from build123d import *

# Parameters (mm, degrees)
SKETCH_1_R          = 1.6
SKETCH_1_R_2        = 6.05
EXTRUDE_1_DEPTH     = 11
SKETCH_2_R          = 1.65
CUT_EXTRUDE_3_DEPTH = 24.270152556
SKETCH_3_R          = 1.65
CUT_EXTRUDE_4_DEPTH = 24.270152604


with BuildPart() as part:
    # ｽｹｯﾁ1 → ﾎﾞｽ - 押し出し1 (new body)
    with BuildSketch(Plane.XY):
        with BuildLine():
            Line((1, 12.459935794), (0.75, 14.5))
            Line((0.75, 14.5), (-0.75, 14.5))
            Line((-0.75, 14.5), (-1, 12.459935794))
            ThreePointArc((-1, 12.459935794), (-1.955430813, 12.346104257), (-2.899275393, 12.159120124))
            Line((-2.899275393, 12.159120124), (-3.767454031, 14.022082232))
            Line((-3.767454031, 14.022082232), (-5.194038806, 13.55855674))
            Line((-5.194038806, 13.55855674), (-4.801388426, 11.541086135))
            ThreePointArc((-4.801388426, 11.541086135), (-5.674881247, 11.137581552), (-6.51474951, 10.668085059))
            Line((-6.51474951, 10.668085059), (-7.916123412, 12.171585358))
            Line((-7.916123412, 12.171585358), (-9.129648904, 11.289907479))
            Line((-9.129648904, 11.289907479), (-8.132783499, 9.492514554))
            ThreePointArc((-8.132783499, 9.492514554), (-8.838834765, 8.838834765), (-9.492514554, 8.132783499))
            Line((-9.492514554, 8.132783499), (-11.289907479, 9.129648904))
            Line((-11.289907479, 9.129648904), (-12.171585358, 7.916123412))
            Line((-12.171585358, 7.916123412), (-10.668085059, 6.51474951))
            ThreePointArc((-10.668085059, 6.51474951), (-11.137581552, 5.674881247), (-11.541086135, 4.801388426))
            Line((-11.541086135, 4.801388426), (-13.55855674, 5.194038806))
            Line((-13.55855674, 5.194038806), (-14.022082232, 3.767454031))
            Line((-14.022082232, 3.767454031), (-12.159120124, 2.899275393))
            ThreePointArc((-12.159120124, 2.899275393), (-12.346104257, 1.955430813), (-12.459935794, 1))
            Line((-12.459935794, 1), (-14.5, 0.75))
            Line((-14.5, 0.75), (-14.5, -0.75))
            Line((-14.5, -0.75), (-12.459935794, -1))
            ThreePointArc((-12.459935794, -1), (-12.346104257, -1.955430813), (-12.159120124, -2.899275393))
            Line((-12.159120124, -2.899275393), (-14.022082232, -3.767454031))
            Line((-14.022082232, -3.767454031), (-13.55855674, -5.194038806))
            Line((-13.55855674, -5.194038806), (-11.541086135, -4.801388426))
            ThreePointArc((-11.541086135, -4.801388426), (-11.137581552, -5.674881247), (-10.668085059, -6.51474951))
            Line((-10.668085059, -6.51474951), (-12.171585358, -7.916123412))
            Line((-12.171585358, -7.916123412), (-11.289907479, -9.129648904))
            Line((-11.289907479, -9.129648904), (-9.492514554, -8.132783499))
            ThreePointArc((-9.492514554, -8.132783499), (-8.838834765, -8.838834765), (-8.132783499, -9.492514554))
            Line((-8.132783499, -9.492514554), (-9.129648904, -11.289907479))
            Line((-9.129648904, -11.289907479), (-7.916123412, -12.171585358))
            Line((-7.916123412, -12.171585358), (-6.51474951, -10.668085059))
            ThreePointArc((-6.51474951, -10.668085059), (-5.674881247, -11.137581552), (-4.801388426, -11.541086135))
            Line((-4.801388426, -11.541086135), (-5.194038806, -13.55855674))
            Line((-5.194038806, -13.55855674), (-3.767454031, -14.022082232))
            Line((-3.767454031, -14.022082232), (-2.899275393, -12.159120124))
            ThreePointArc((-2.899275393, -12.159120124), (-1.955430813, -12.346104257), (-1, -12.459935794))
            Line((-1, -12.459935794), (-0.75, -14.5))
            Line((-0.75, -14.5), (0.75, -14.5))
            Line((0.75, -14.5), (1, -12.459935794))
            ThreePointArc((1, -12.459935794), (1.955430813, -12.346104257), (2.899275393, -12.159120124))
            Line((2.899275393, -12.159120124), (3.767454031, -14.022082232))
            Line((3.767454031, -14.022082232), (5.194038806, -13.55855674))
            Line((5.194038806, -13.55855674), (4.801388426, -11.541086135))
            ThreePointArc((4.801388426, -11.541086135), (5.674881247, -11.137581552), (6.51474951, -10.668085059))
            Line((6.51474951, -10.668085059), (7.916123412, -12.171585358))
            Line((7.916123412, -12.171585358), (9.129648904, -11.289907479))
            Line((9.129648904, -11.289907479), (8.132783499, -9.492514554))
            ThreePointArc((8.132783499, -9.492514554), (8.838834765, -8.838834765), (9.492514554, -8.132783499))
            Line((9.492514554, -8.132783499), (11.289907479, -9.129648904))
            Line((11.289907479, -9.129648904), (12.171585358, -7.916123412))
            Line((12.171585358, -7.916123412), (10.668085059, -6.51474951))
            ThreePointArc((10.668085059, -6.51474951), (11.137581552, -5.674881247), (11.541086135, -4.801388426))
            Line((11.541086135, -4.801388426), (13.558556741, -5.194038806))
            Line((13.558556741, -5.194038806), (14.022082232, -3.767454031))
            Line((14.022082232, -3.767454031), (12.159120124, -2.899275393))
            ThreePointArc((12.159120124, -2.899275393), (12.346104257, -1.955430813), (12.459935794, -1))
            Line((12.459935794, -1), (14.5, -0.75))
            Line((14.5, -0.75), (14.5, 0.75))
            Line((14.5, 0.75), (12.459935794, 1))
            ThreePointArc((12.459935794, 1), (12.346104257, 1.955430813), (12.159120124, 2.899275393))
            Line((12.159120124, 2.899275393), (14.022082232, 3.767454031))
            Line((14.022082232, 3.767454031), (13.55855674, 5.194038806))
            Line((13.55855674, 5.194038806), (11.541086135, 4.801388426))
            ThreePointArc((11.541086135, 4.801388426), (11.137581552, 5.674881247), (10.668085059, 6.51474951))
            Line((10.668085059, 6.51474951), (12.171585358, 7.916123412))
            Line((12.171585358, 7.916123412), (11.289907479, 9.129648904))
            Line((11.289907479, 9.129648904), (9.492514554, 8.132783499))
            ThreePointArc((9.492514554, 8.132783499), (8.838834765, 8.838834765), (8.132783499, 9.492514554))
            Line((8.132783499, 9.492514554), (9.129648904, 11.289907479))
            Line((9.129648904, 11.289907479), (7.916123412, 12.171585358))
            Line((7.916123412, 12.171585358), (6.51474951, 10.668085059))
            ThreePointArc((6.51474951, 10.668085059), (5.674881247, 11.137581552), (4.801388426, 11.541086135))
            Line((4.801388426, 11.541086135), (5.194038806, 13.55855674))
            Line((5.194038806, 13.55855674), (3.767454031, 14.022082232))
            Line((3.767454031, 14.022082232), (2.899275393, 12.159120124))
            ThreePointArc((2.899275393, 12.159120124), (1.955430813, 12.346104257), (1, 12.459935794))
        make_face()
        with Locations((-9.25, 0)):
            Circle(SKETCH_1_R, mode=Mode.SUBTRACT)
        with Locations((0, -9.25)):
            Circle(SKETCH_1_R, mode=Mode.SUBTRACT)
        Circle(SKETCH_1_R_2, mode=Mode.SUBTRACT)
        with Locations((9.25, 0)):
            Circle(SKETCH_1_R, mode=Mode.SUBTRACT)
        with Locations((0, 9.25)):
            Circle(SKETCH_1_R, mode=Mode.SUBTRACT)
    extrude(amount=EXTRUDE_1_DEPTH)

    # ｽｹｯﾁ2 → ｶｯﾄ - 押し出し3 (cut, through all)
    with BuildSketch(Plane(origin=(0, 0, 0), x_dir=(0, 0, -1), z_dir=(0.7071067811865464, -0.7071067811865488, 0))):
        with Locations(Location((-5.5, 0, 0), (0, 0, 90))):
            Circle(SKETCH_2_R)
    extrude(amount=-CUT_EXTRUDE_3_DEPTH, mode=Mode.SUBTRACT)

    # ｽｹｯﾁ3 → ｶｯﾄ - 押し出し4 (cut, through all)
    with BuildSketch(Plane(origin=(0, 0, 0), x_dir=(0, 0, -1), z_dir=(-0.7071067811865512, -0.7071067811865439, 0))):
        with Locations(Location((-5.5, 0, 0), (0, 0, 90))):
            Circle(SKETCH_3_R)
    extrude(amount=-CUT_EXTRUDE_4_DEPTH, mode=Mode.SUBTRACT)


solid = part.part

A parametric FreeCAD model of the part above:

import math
import FreeCAD as App
import Part
import Sketcher
from FreeCAD import Vector
Q = App.Units.Quantity

doc = App.newDocument("Part")
body = doc.addObject("PartDesign::Body", "Body")

# Sketch on XY plane
sketch1 = body.newObject("Sketcher::SketchObject", "Sketch")
sketch1.AttachmentSupport = (doc.getObject("XY_Plane"), [""])
sketch1.MapMode = "FlatFace"
sketch1.addGeometry([
    Part.LineSegment(Vector(1, 12.5, 0), Vector(0.8, 14.5, 0)),  # 0
    Part.LineSegment(Vector(0.8, 14.5, 0), Vector(-0.8, 14.5, 0)),  # 1
    Part.LineSegment(Vector(-0.8, 14.5, 0), Vector(-1, 12.5, 0)),  # 2
    Part.ArcOfCircle(Part.Circle(Vector(0, 0, 0), Vector(0, 0, 1), 12.5), math.radians(94.59), math.radians(103.41)),  # 3
    Part.LineSegment(Vector(-2.9, 12.2, 0), Vector(-3.8, 14, 0)),  # 4
    Part.LineSegment(Vector(-3.8, 14, 0), Vector(-5.2, 13.6, 0)),  # 5
    Part.LineSegment(Vector(-5.2, 13.6, 0), Vector(-4.8, 11.5, 0)),  # 6
    Part.ArcOfCircle(Part.Circle(Vector(0, 0, 0), Vector(0, 0, 1), 12.5), math.radians(112.59), math.radians(121.41)),  # 7
    Part.LineSegment(Vector(-6.5, 10.7, 0), Vector(-7.9, 12.2, 0)),  # 8
    Part.LineSegment(Vector(-7.9, 12.2, 0), Vector(-9.1, 11.3, 0)),  # 9
    Part.LineSegment(Vector(-9.1, 11.3, 0), Vector(-8.1, 9.5, 0)),  # 10
    Part.ArcOfCircle(Part.Circle(Vector(0, 0, 0), Vector(0, 0, 1), 12.5), math.radians(130.59), math.radians(139.41)),  # 11
    Part.LineSegment(Vector(-9.5, 8.1, 0), Vector(-11.3, 9.1, 0)),  # 12
    Part.LineSegment(Vector(-11.3, 9.1, 0), Vector(-12.2, 7.9, 0)),  # 13
    Part.LineSegment(Vector(-12.2, 7.9, 0), Vector(-10.7, 6.5, 0)),  # 14
    Part.ArcOfCircle(Part.Circle(Vector(0, 0, 0), Vector(0, 0, 1), 12.5), math.radians(148.59), math.radians(157.41)),  # 15
    Part.LineSegment(Vector(-11.5, 4.8, 0), Vector(-13.6, 5.2, 0)),  # 16
    Part.LineSegment(Vector(-13.6, 5.2, 0), Vector(-14, 3.8, 0)),  # 17
    Part.LineSegment(Vector(-14, 3.8, 0), Vector(-12.2, 2.9, 0)),  # 18
    Part.ArcOfCircle(Part.Circle(Vector(0, 0, 0), Vector(0, 0, 1), 12.5), math.radians(166.59), math.radians(175.41)),  # 19
    Part.LineSegment(Vector(-12.5, 1, 0), Vector(-14.5, 0.8, 0)),  # 20
    Part.LineSegment(Vector(-14.5, 0.8, 0), Vector(-14.5, -0.8, 0)),  # 21
    Part.LineSegment(Vector(-14.5, -0.8, 0), Vector(-12.5, -1, 0)),  # 22
    Part.ArcOfCircle(Part.Circle(Vector(0, 0, 0), Vector(0, 0, 1), 12.5), math.radians(-175.41), math.radians(-166.59)),  # 23
    Part.LineSegment(Vector(-12.2, -2.9, 0), Vector(-14, -3.8, 0)),  # 24
    Part.LineSegment(Vector(-14, -3.8, 0), Vector(-13.6, -5.2, 0)),  # 25
    Part.LineSegment(Vector(-13.6, -5.2, 0), Vector(-11.5, -4.8, 0)),  # 26
    Part.ArcOfCircle(Part.Circle(Vector(0, 0, 0), Vector(0, 0, 1), 12.5), math.radians(-157.41), math.radians(-148.59)),  # 27
    Part.LineSegment(Vector(-10.7, -6.5, 0), Vector(-12.2, -7.9, 0)),  # 28
    Part.LineSegment(Vector(-12.2, -7.9, 0), Vector(-11.3, -9.1, 0)),  # 29
    Part.LineSegment(Vector(-11.3, -9.1, 0), Vector(-9.5, -8.1, 0)),  # 30
    Part.ArcOfCircle(Part.Circle(Vector(0, 0, 0), Vector(0, 0, 1), 12.5), math.radians(-139.41), math.radians(-130.59)),  # 31
    Part.LineSegment(Vector(-8.1, -9.5, 0), Vector(-9.1, -11.3, 0)),  # 32
    Part.LineSegment(Vector(-9.1, -11.3, 0), Vector(-7.9, -12.2, 0)),  # 33
    Part.LineSegment(Vector(-7.9, -12.2, 0), Vector(-6.5, -10.7, 0)),  # 34
    Part.ArcOfCircle(Part.Circle(Vector(0, 0, 0), Vector(0, 0, 1), 12.5), math.radians(-121.41), math.radians(-112.59)),  # 35
    Part.LineSegment(Vector(-4.8, -11.5, 0), Vector(-5.2, -13.6, 0)),  # 36
    Part.LineSegment(Vector(-5.2, -13.6, 0), Vector(-3.8, -14, 0)),  # 37
    Part.LineSegment(Vector(-3.8, -14, 0), Vector(-2.9, -12.2, 0)),  # 38
    Part.ArcOfCircle(Part.Circle(Vector(0, 0, 0), Vector(0, 0, 1), 12.5), math.radians(-103.41), math.radians(-94.59)),  # 39
    Part.LineSegment(Vector(-1, -12.5, 0), Vector(-0.8, -14.5, 0)),  # 40
    Part.LineSegment(Vector(-0.8, -14.5, 0), Vector(0.8, -14.5, 0)),  # 41
    Part.LineSegment(Vector(0.8, -14.5, 0), Vector(1, -12.5, 0)),  # 42
    Part.ArcOfCircle(Part.Circle(Vector(0, 0, 0), Vector(0, 0, 1), 12.5), math.radians(-85.41), math.radians(-76.59)),  # 43
    Part.LineSegment(Vector(2.9, -12.2, 0), Vector(3.8, -14, 0)),  # 44
    Part.LineSegment(Vector(3.8, -14, 0), Vector(5.2, -13.6, 0)),  # 45
    Part.LineSegment(Vector(5.2, -13.6, 0), Vector(4.8, -11.5, 0)),  # 46
    Part.ArcOfCircle(Part.Circle(Vector(0, 0, 0), Vector(0, 0, 1), 12.5), math.radians(-67.41), math.radians(-58.59)),  # 47
    Part.LineSegment(Vector(6.5, -10.7, 0), Vector(7.9, -12.2, 0)),  # 48
    Part.LineSegment(Vector(7.9, -12.2, 0), Vector(9.1, -11.3, 0)),  # 49
    Part.LineSegment(Vector(9.1, -11.3, 0), Vector(8.1, -9.5, 0)),  # 50
    Part.ArcOfCircle(Part.Circle(Vector(0, 0, 0), Vector(0, 0, 1), 12.5), math.radians(-49.41), math.radians(-40.59)),  # 51
    Part.LineSegment(Vector(9.5, -8.1, 0), Vector(11.3, -9.1, 0)),  # 52
    Part.LineSegment(Vector(11.3, -9.1, 0), Vector(12.2, -7.9, 0)),  # 53
    Part.LineSegment(Vector(12.2, -7.9, 0), Vector(10.7, -6.5, 0)),  # 54
    Part.ArcOfCircle(Part.Circle(Vector(0, 0, 0), Vector(0, 0, 1), 12.5), math.radians(-31.41), math.radians(-22.59)),  # 55
    Part.LineSegment(Vector(11.5, -4.8, 0), Vector(13.6, -5.2, 0)),  # 56
    Part.LineSegment(Vector(13.6, -5.2, 0), Vector(14, -3.8, 0)),  # 57
    Part.LineSegment(Vector(14, -3.8, 0), Vector(12.2, -2.9, 0)),  # 58
    Part.ArcOfCircle(Part.Circle(Vector(0, 0, 0), Vector(0, 0, 1), 12.5), math.radians(-13.41), math.radians(-4.59)),  # 59
    Part.LineSegment(Vector(12.5, -1, 0), Vector(14.5, -0.8, 0)),  # 60
    Part.LineSegment(Vector(14.5, -0.8, 0), Vector(14.5, 0.8, 0)),  # 61
    Part.LineSegment(Vector(14.5, 0.8, 0), Vector(12.5, 1, 0)),  # 62
    Part.ArcOfCircle(Part.Circle(Vector(0, 0, 0), Vector(0, 0, 1), 12.5), math.radians(4.59), math.radians(13.41)),  # 63
    Part.LineSegment(Vector(12.2, 2.9, 0), Vector(14, 3.8, 0)),  # 64
    Part.LineSegment(Vector(14, 3.8, 0), Vector(13.6, 5.2, 0)),  # 65
    Part.LineSegment(Vector(13.6, 5.2, 0), Vector(11.5, 4.8, 0)),  # 66
    Part.ArcOfCircle(Part.Circle(Vector(0, 0, 0), Vector(0, 0, 1), 12.5), math.radians(22.59), math.radians(31.41)),  # 67
    Part.LineSegment(Vector(10.7, 6.5, 0), Vector(12.2, 7.9, 0)),  # 68
    Part.LineSegment(Vector(12.2, 7.9, 0), Vector(11.3, 9.1, 0)),  # 69
    Part.LineSegment(Vector(11.3, 9.1, 0), Vector(9.5, 8.1, 0)),  # 70
    Part.ArcOfCircle(Part.Circle(Vector(0, 0, 0), Vector(0, 0, 1), 12.5), math.radians(40.59), math.radians(49.41)),  # 71
    Part.LineSegment(Vector(8.1, 9.5, 0), Vector(9.1, 11.3, 0)),  # 72
    Part.LineSegment(Vector(9.1, 11.3, 0), Vector(7.9, 12.2, 0)),  # 73
    Part.LineSegment(Vector(7.9, 12.2, 0), Vector(6.5, 10.7, 0)),  # 74
    Part.ArcOfCircle(Part.Circle(Vector(0, 0, 0), Vector(0, 0, 1), 12.5), math.radians(58.59), math.radians(67.41)),  # 75
    Part.LineSegment(Vector(4.8, 11.5, 0), Vector(5.2, 13.6, 0)),  # 76
    Part.LineSegment(Vector(5.2, 13.6, 0), Vector(3.8, 14, 0)),  # 77
    Part.LineSegment(Vector(3.8, 14, 0), Vector(2.9, 12.2, 0)),  # 78
    Part.ArcOfCircle(Part.Circle(Vector(0, 0, 0), Vector(0, 0, 1), 12.5), math.radians(76.59), math.radians(85.41)),  # 79
    Part.Circle(Vector(0, -9.2, 0), Vector(0, 0, 1), 1.6),  # 80
    Part.Circle(Vector(-9.2, 0, 0), Vector(0, 0, 1), 1.6),  # 81
    Part.Circle(Vector(0, 0, 0), Vector(0, 0, 1), 6),  # 82
    Part.Circle(Vector(0, 9.2, 0), Vector(0, 0, 1), 1.6),  # 83
    Part.Circle(Vector(9.2, 0, 0), Vector(0, 0, 1), 1.6),  # 84
], False)
sketch1.addConstraint([
    Sketcher.Constraint("Coincident", 0, 2, 1, 1),
    Sketcher.Constraint("Coincident", 1, 2, 2, 1),
    Sketcher.Constraint("Coincident", 2, 2, 3, 1),
    Sketcher.Constraint("Coincident", 3, 2, 4, 1),
    Sketcher.Constraint("Coincident", 4, 2, 5, 1),
    Sketcher.Constraint("Coincident", 5, 2, 6, 1),
    Sketcher.Constraint("Coincident", 6, 2, 7, 1),
    Sketcher.Constraint("Coincident", 7, 2, 8, 1),
    Sketcher.Constraint("Coincident", 8, 2, 9, 1),
    Sketcher.Constraint("Coincident", 9, 2, 10, 1),
    Sketcher.Constraint("Coincident", 10, 2, 11, 1),
    Sketcher.Constraint("Coincident", 11, 2, 12, 1),
    Sketcher.Constraint("Coincident", 12, 2, 13, 1),
    Sketcher.Constraint("Coincident", 13, 2, 14, 1),
    Sketcher.Constraint("Coincident", 14, 2, 15, 1),
    Sketcher.Constraint("Coincident", 15, 2, 16, 1),
    Sketcher.Constraint("Coincident", 16, 2, 17, 1),
    Sketcher.Constraint("Coincident", 17, 2, 18, 1),
    Sketcher.Constraint("Coincident", 18, 2, 19, 1),
    Sketcher.Constraint("Coincident", 19, 2, 20, 1),
    Sketcher.Constraint("Coincident", 20, 2, 21, 1),
    Sketcher.Constraint("Coincident", 21, 2, 22, 1),
    Sketcher.Constraint("Coincident", 22, 2, 23, 1),
    Sketcher.Constraint("Coincident", 23, 2, 24, 1),
    Sketcher.Constraint("Coincident", 24, 2, 25, 1),
    Sketcher.Constraint("Coincident", 25, 2, 26, 1),
    Sketcher.Constraint("Coincident", 26, 2, 27, 1),
    Sketcher.Constraint("Coincident", 27, 2, 28, 1),
    Sketcher.Constraint("Coincident", 28, 2, 29, 1),
    Sketcher.Constraint("Coincident", 29, 2, 30, 1),
    Sketcher.Constraint("Coincident", 30, 2, 31, 1),
    Sketcher.Constraint("Coincident", 31, 2, 32, 1),
    Sketcher.Constraint("Coincident", 32, 2, 33, 1),
    Sketcher.Constraint("Coincident", 33, 2, 34, 1),
    Sketcher.Constraint("Coincident", 34, 2, 35, 1),
    Sketcher.Constraint("Coincident", 35, 2, 36, 1),
    Sketcher.Constraint("Coincident", 36, 2, 37, 1),
    Sketcher.Constraint("Coincident", 37, 2, 38, 1),
    Sketcher.Constraint("Coincident", 38, 2, 39, 1),
    Sketcher.Constraint("Coincident", 39, 2, 40, 1),
    Sketcher.Constraint("Coincident", 40, 2, 41, 1),
    Sketcher.Constraint("Coincident", 41, 2, 42, 1),
    Sketcher.Constraint("Coincident", 42, 2, 43, 1),
    Sketcher.Constraint("Coincident", 43, 2, 44, 1),
    Sketcher.Constraint("Coincident", 44, 2, 45, 1),
    Sketcher.Constraint("Coincident", 45, 2, 46, 1),
    Sketcher.Constraint("Coincident", 46, 2, 47, 1),
    Sketcher.Constraint("Coincident", 47, 2, 48, 1),
    Sketcher.Constraint("Coincident", 48, 2, 49, 1),
    Sketcher.Constraint("Coincident", 49, 2, 50, 1),
    Sketcher.Constraint("Coincident", 50, 2, 51, 1),
    Sketcher.Constraint("Coincident", 51, 2, 52, 1),
    Sketcher.Constraint("Coincident", 52, 2, 53, 1),
    Sketcher.Constraint("Coincident", 53, 2, 54, 1),
    Sketcher.Constraint("Coincident", 54, 2, 55, 1),
    Sketcher.Constraint("Coincident", 55, 2, 56, 1),
    Sketcher.Constraint("Coincident", 56, 2, 57, 1),
    Sketcher.Constraint("Coincident", 57, 2, 58, 1),
    Sketcher.Constraint("Coincident", 58, 2, 59, 1),
    Sketcher.Constraint("Coincident", 59, 2, 60, 1),
    Sketcher.Constraint("Coincident", 60, 2, 61, 1),
    Sketcher.Constraint("Coincident", 61, 2, 62, 1),
    Sketcher.Constraint("Coincident", 62, 2, 63, 1),
    Sketcher.Constraint("Coincident", 63, 2, 64, 1),
    Sketcher.Constraint("Coincident", 64, 2, 65, 1),
    Sketcher.Constraint("Coincident", 65, 2, 66, 1),
    Sketcher.Constraint("Coincident", 66, 2, 67, 1),
    Sketcher.Constraint("Coincident", 67, 2, 68, 1),
    Sketcher.Constraint("Coincident", 68, 2, 69, 1),
    Sketcher.Constraint("Coincident", 69, 2, 70, 1),
    Sketcher.Constraint("Coincident", 70, 2, 71, 1),
    Sketcher.Constraint("Coincident", 71, 2, 72, 1),
    Sketcher.Constraint("Coincident", 72, 2, 73, 1),
    Sketcher.Constraint("Coincident", 73, 2, 74, 1),
    Sketcher.Constraint("Coincident", 74, 2, 75, 1),
    Sketcher.Constraint("Coincident", 75, 2, 76, 1),
    Sketcher.Constraint("Coincident", 76, 2, 77, 1),
    Sketcher.Constraint("Coincident", 77, 2, 78, 1),
    Sketcher.Constraint("Coincident", 78, 2, 79, 1),
    Sketcher.Constraint("Coincident", 79, 2, 0, 1),
    Sketcher.Constraint("Horizontal", 1),
    Sketcher.Constraint("Vertical", 21),
    Sketcher.Constraint("Horizontal", 41),
    Sketcher.Constraint("Vertical", 61),
    Sketcher.Constraint("Coincident", 3, 3, -1, 1),
    Sketcher.Constraint("Coincident", 7, 3, -1, 1),
    Sketcher.Constraint("Coincident", 11, 3, -1, 1),
    Sketcher.Constraint("Coincident", 15, 3, -1, 1),
    Sketcher.Constraint("Coincident", 19, 3, -1, 1),
    Sketcher.Constraint("Coincident", 23, 3, -1, 1),
    Sketcher.Constraint("Coincident", 27, 3, -1, 1),
    Sketcher.Constraint("Coincident", 31, 3, -1, 1),
    Sketcher.Constraint("Coincident", 35, 3, -1, 1),
    Sketcher.Constraint("Coincident", 39, 3, -1, 1),
    Sketcher.Constraint("Coincident", 43, 3, -1, 1),
    Sketcher.Constraint("Coincident", 47, 3, -1, 1),
    Sketcher.Constraint("Coincident", 51, 3, -1, 1),
    Sketcher.Constraint("Coincident", 55, 3, -1, 1),
    Sketcher.Constraint("Coincident", 59, 3, -1, 1),
    Sketcher.Constraint("Coincident", 63, 3, -1, 1),
    Sketcher.Constraint("Coincident", 67, 3, -1, 1),
    Sketcher.Constraint("Coincident", 71, 3, -1, 1),
    Sketcher.Constraint("Coincident", 75, 3, -1, 1),
    Sketcher.Constraint("Coincident", 79, 3, -1, 1),
    Sketcher.Constraint("Coincident", 82, 3, -1, 1),
    Sketcher.Constraint("Equal", 3, 7),
    Sketcher.Constraint("Equal", 7, 11),
    Sketcher.Constraint("Equal", 11, 15),
    Sketcher.Constraint("Equal", 15, 19),
    Sketcher.Constraint("Equal", 19, 23),
    Sketcher.Constraint("Equal", 23, 27),
    Sketcher.Constraint("Equal", 27, 31),
    Sketcher.Constraint("Equal", 31, 35),
    Sketcher.Constraint("Equal", 35, 39),
    Sketcher.Constraint("Equal", 39, 43),
    Sketcher.Constraint("Equal", 43, 47),
    Sketcher.Constraint("Equal", 47, 51),
    Sketcher.Constraint("Equal", 51, 55),
    Sketcher.Constraint("Equal", 55, 59),
    Sketcher.Constraint("Equal", 59, 63),
    Sketcher.Constraint("Equal", 63, 67),
    Sketcher.Constraint("Equal", 67, 71),
    Sketcher.Constraint("Equal", 71, 75),
    Sketcher.Constraint("Equal", 75, 79),
    Sketcher.Constraint("Equal", 80, 81),
    Sketcher.Constraint("Equal", 81, 83),
    Sketcher.Constraint("Equal", 83, 84),
    Sketcher.Constraint("Symmetric", 80, 3, 83, 3, -1, 1),
    Sketcher.Constraint("Symmetric", 81, 3, 84, 3, -1, 1),
    Sketcher.Constraint("Symmetric", 0, 2, 40, 2, -1, 1),
    Sketcher.Constraint("Symmetric", 4, 2, 44, 2, -1, 1),
    Sketcher.Constraint("Symmetric", 5, 2, 45, 2, -1, 1),
    Sketcher.Constraint("Symmetric", 8, 2, 48, 2, -1, 1),
    Sketcher.Constraint("Symmetric", 9, 2, 49, 2, -1, 1),
    Sketcher.Constraint("Symmetric", 12, 2, 52, 2, -1, 1),
    Sketcher.Constraint("Symmetric", 13, 2, 53, 2, -1, 1),
    Sketcher.Constraint("Symmetric", 16, 2, 56, 2, -1, 1),
    Sketcher.Constraint("Symmetric", 17, 2, 57, 2, -1, 1),
    Sketcher.Constraint("Symmetric", 20, 2, 60, 2, -1, 1),
    Sketcher.Constraint("Symmetric", 24, 2, 64, 2, -1, 1),
    Sketcher.Constraint("Symmetric", 25, 2, 65, 2, -1, 1),
    Sketcher.Constraint("Symmetric", 28, 2, 68, 2, -1, 1),
    Sketcher.Constraint("Symmetric", 29, 2, 69, 2, -1, 1),
    Sketcher.Constraint("Symmetric", 32, 2, 72, 2, -1, 1),
    Sketcher.Constraint("Symmetric", 33, 2, 73, 2, -1, 1),
    Sketcher.Constraint("Symmetric", 36, 2, 76, 2, -1, 1),
    Sketcher.Constraint("Symmetric", 37, 2, 77, 2, -1, 1),
    Sketcher.Constraint("Symmetric", 37, 2, 44, 2, -2),
    Sketcher.Constraint("Symmetric", 36, 2, 45, 2, -2),
    Sketcher.Constraint("Symmetric", 33, 2, 48, 2, -2),
    Sketcher.Constraint("Symmetric", 32, 2, 49, 2, -2),
    Sketcher.Constraint("Symmetric", 29, 2, 52, 2, -2),
    Sketcher.Constraint("Symmetric", 28, 2, 53, 2, -2),
    Sketcher.Constraint("Symmetric", 25, 2, 56, 2, -2),
    Sketcher.Constraint("Symmetric", 24, 2, 57, 2, -2),
    Sketcher.Constraint("PointOnObject", 80, 3, -2),
    Sketcher.Constraint("PointOnObject", 81, 3, -1),
    Sketcher.Constraint("Perpendicular", 0, 20),
    Sketcher.Constraint("Perpendicular", 2, 22),
    Sketcher.Constraint("Perpendicular", 4, 24),
    Sketcher.Constraint("Perpendicular", 5, 25),
    Sketcher.Constraint("Perpendicular", 6, 26),
    Sketcher.Constraint("Perpendicular", 8, 28),
    Sketcher.Constraint("Perpendicular", 9, 29),
    Sketcher.Constraint("Perpendicular", 10, 30),
    Sketcher.Constraint("Perpendicular", 12, 32),
    Sketcher.Constraint("Perpendicular", 14, 34),
    Sketcher.Constraint("Perpendicular", 16, 36),
    Sketcher.Constraint("Perpendicular", 18, 38),
    Sketcher.Constraint("Perpendicular", 20, 40),
    Sketcher.Constraint("Perpendicular", 22, 42),
    Sketcher.Constraint("Perpendicular", 24, 44),
    Sketcher.Constraint("Perpendicular", 26, 46),
    Sketcher.Constraint("Perpendicular", 28, 48),
    Sketcher.Constraint("Perpendicular", 30, 50),
    Sketcher.Constraint("Perpendicular", 32, 52),
    Sketcher.Constraint("Perpendicular", 34, 54),
    Sketcher.Constraint("Perpendicular", 36, 56),
    Sketcher.Constraint("Perpendicular", 38, 58),
    Sketcher.Constraint("Perpendicular", 40, 60),
    Sketcher.Constraint("Perpendicular", 42, 62),
    Sketcher.Constraint("Perpendicular", 44, 64),
    Sketcher.Constraint("Perpendicular", 46, 66),
    Sketcher.Constraint("Perpendicular", 48, 68),
    Sketcher.Constraint("Perpendicular", 50, 70),
    Sketcher.Constraint("Perpendicular", 52, 72),
    Sketcher.Constraint("Perpendicular", 54, 74),
    Sketcher.Constraint("Perpendicular", 56, 76),
    Sketcher.Constraint("Perpendicular", 58, 78),
    Sketcher.Constraint("Horizontal", 39, 2, 42, 2),
    Sketcher.Constraint("Horizontal", 38, 2, 43, 2),
    Sketcher.Constraint("Horizontal", 35, 2, 46, 2),
    Sketcher.Constraint("Horizontal", 34, 2, 47, 2),
    Sketcher.Constraint("Horizontal", 31, 2, 50, 2),
    Sketcher.Constraint("Horizontal", 22, 2, 59, 2),
    Sketcher.Constraint("Horizontal", 21, 2, 60, 2),
    Sketcher.Constraint("Horizontal", 20, 2, 61, 2),
    Sketcher.Constraint("Horizontal", 2, 2, 79, 2),
    Sketcher.Constraint("Equal", 41, 21),
    Sketcher.Constraint("Equal", 2, 4),
    Sketcher.Constraint("Equal", 4, 6),
    Sketcher.Constraint("Equal", 6, 8),
    Sketcher.Constraint("Equal", 5, 9),
    Sketcher.Constraint("Equal", 8, 10),
    Sketcher.Constraint("Equal", 10, 12),
    Sketcher.Constraint("Equal", 9, 13),
    Sketcher.Constraint("Equal", 12, 14),
    Sketcher.Constraint("Equal", 14, 16),
    Sketcher.Constraint("Equal", 13, 17),
    Sketcher.Constraint("Equal", 16, 18),
    Sketcher.Constraint("Equal", 18, 20),
    Sketcher.Constraint("Diameter", 80, Q("3.2 mm")),
    Sketcher.Constraint("Diameter", 82, Q("12.1 mm")),
    Sketcher.Constraint("Radius", 3, Q("12.5 mm")),
    Sketcher.Constraint("Angle", 5, Q("-162 deg")),
    Sketcher.Constraint("Angle", 9, Q("-144 deg")),
    Sketcher.Constraint("DistanceX", 1, 2, 1, 1, Q("1.5 mm")),
    Sketcher.Constraint("DistanceX", 2, 2, -1, 1, Q("1 mm")),
    Sketcher.Constraint("Distance", 5, Q("1.5 mm")),
    Sketcher.Constraint("DistanceY", -1, 1, 0, 2, Q("14.5 mm")),
    Sketcher.Constraint("DistanceY", 80, 3, -1, 1, Q("9.25 mm")),
    Sketcher.Constraint("DistanceX", 81, 3, -1, 1, Q("9.25 mm")),
    Sketcher.Constraint("DistanceY", -1, 1, 3, 2, Q("12.15912 mm")),
    Sketcher.Constraint("DistanceX", 5, 2, -1, 1, Q("5.194039 mm")),
    Sketcher.Constraint("DistanceX", 7, 2, -1, 1, Q("6.51475 mm")),
    Sketcher.Constraint("DistanceX", 9, 2, -1, 1, Q("9.129649 mm")),
])
pad1 = body.newObject("PartDesign::Pad", "Pad")
pad1.Profile = sketch1
pad1.Length = 11

# Sketch on an angled plane
sketch2 = body.newObject("Sketcher::SketchObject", "Sketch001")
sketch2.Placement = App.Placement(Vector(0, 0, 0), App.Rotation(Vector(0, 0, -1), Vector(0.707106781, 0.707106781, 0), Vector(0.707106781, -0.707106781, 0), "ZXY"))
sketch2.addGeometry(Part.Circle(Vector(-5.5, 0, 0), Vector(0, 0, 1), 1.6), False)
sketch2.addConstraint([
    Sketcher.Constraint("PointOnObject", 0, 3, -1),
    Sketcher.Constraint("Diameter", 0, Q("3.3 mm")),
    Sketcher.Constraint("DistanceX", 0, 3, -1, 1, Q("5.5 mm")),
])
pocket1 = body.newObject("PartDesign::Pocket", "Pocket")
pocket1.Profile = sketch2
pocket1.Type = "ThroughAll"

# Sketch on an angled plane
sketch3 = body.newObject("Sketcher::SketchObject", "Sketch002")
sketch3.Placement = App.Placement(Vector(0, 0, 0), App.Rotation(Vector(0, 0, -1), Vector(0.707106781, -0.707106781, 0), Vector(-0.707106781, -0.707106781, 0), "ZXY"))
sketch3.addGeometry(Part.Circle(Vector(-5.5, 0, 0), Vector(0, 0, 1), 1.6), False)
sketch3.addConstraint([
    Sketcher.Constraint("PointOnObject", 0, 3, -1),
    Sketcher.Constraint("Diameter", 0, Q("3.3 mm")),
    Sketcher.Constraint("DistanceX", 0, 3, -1, 1, Q("5.5 mm")),
])
pocket2 = body.newObject("PartDesign::Pocket", "Pocket001")
pocket2.Profile = sketch3
pocket2.Type = "ThroughAll"

doc.recompute()
